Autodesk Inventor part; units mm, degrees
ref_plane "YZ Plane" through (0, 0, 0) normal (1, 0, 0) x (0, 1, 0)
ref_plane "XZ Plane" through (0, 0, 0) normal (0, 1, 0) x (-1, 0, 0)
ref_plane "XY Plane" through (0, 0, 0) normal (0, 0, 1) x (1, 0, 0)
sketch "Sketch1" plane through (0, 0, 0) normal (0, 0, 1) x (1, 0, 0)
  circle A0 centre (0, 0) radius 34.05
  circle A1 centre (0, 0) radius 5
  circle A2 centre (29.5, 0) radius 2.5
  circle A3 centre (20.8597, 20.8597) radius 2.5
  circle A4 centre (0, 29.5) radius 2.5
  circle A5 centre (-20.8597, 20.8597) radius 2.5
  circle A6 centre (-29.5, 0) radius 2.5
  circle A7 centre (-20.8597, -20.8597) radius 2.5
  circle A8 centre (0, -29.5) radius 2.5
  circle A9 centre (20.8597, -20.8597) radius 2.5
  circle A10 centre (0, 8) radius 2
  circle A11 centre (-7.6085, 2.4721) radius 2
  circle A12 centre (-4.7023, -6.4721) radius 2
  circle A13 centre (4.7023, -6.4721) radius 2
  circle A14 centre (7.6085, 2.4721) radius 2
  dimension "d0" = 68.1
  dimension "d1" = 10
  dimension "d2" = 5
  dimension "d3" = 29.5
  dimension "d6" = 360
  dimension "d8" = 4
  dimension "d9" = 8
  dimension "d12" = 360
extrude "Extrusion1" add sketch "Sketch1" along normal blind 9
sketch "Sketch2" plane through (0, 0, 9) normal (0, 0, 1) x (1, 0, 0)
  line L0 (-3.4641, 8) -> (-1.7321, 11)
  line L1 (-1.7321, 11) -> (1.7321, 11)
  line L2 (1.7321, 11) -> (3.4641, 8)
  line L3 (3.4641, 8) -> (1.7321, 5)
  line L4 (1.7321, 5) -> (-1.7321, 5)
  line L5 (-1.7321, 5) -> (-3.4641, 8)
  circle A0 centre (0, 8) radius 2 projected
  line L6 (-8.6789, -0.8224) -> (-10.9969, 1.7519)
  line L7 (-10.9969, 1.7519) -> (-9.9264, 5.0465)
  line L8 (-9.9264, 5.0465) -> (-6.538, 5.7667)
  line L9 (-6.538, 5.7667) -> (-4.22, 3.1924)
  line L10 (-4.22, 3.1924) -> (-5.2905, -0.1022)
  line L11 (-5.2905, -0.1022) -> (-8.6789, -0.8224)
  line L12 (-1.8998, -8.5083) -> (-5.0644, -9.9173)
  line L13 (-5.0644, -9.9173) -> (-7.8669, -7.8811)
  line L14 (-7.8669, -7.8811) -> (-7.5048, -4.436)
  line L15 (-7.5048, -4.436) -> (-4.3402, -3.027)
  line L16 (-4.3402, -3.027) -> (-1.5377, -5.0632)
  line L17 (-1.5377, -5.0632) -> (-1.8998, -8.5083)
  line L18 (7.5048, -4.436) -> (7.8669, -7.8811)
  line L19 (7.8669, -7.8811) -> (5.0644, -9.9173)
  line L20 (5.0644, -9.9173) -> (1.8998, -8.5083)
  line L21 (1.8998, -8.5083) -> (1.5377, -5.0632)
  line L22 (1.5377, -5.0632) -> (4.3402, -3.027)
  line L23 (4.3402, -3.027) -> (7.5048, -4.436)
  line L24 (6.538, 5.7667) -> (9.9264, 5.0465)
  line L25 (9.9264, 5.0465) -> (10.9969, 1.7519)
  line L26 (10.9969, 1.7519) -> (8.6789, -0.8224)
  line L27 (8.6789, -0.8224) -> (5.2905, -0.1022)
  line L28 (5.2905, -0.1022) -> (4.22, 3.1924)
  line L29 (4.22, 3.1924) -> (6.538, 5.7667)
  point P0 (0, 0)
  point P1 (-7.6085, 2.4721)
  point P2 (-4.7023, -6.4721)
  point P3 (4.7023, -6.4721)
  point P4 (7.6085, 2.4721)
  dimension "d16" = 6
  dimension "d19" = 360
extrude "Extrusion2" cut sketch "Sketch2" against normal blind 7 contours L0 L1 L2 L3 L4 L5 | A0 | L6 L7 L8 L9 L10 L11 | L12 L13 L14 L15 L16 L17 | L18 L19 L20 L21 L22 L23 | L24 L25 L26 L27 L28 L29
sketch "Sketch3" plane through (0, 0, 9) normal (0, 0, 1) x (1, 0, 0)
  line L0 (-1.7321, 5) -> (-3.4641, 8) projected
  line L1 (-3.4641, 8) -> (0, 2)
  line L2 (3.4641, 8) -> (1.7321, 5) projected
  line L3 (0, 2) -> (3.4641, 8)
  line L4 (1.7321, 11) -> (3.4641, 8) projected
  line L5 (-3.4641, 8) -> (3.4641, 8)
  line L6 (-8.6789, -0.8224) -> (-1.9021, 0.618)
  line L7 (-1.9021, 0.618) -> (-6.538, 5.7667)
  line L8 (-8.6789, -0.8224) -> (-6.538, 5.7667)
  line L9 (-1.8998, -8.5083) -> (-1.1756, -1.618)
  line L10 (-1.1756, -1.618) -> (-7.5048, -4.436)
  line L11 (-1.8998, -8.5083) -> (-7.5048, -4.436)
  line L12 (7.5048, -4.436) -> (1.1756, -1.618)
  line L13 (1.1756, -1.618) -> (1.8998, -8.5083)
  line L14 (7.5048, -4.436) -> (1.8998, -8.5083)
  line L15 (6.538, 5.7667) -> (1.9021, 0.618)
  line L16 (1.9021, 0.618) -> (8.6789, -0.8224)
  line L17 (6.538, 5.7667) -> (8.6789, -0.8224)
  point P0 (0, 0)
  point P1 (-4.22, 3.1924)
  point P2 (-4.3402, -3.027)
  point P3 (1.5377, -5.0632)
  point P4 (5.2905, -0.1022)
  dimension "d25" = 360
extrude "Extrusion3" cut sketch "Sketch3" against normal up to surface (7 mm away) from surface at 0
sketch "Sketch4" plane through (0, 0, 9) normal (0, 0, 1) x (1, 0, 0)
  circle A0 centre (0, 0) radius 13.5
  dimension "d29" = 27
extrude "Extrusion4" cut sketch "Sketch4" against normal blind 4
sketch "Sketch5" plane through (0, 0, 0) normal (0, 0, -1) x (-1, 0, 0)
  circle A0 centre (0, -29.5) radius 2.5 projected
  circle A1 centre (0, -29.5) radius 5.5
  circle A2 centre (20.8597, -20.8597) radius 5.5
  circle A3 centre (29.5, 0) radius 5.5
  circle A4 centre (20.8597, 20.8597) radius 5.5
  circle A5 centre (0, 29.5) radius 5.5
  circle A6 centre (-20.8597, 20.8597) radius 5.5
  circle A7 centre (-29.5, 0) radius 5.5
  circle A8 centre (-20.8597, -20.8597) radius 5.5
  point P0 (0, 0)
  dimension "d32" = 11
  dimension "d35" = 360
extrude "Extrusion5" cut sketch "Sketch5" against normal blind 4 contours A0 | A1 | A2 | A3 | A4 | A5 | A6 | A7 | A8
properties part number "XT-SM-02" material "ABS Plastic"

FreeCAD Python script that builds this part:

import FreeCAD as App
import Part
import Sketcher

V = App.Vector
Q = App.Units.Quantity

doc = App.newDocument("Part")
body = doc.addObject("PartDesign::Body", "Body")

# Sketch on XY plane
sketch1 = body.newObject("Sketcher::SketchObject", "Sketch")
sketch1.AttachmentSupport = (doc.getObject("XY_Plane"), [""])
sketch1.MapMode = "FlatFace"
sketch1.addGeometry([
    Part.Circle(V(0, 0, 0), V(0, 0, 1), 34.05),  # 0
    Part.Circle(V(-20.8597, -20.8597, 0), V(0, 0, 1), 2.5),  # 1
    Part.Circle(V(-4.7023, -6.4721, 0), V(0, 0, 1), 2),  # 2
    Part.Circle(V(0, -29.5, 0), V(0, 0, 1), 2.5),  # 3
    Part.Circle(V(20.8597, -20.8597, 0), V(0, 0, 1), 2.5),  # 4
    Part.Circle(V(4.7023, -6.4721, 0), V(0, 0, 1), 2),  # 5
    Part.Circle(V(-29.5, 0, 0), V(0, 0, 1), 2.5),  # 6
    Part.Circle(V(-7.6085, 2.4721, 0), V(0, 0, 1), 2),  # 7
    Part.Circle(V(-20.8597, 20.8597, 0), V(0, 0, 1), 2.5),  # 8
    Part.Circle(V(0, 0, 0), V(0, 0, 1), 5),  # 9
    Part.Circle(V(7.6085, 2.4721, 0), V(0, 0, 1), 2),  # 10
    Part.Circle(V(0, 8, 0), V(0, 0, 1), 2),  # 11
    Part.Circle(V(29.5, 0, 0), V(0, 0, 1), 2.5),  # 12
    Part.Circle(V(0, 29.5, 0), V(0, 0, 1), 2.5),  # 13
    Part.Circle(V(20.8597, 20.8597, 0), V(0, 0, 1), 2.5),  # 14
], False)
sketch1.addConstraint([
    Sketcher.Constraint("Coincident", 0, 3, -1, 1),
    Sketcher.Constraint("Coincident", 9, 3, -1, 1),
    Sketcher.Constraint("Equal", 1, 3),
    Sketcher.Constraint("Equal", 3, 4),
    Sketcher.Constraint("Equal", 2, 5),
    Sketcher.Constraint("Equal", 4, 6),
    Sketcher.Constraint("Equal", 5, 7),
    Sketcher.Constraint("Equal", 6, 8),
    Sketcher.Constraint("Equal", 7, 10),
    Sketcher.Constraint("Equal", 10, 11),
    Sketcher.Constraint("Equal", 8, 12),
    Sketcher.Constraint("Equal", 12, 13),
    Sketcher.Constraint("Equal", 13, 14),
    Sketcher.Constraint("Symmetric", 4, 3, 8, 3, -1, 1),
    Sketcher.Constraint("Symmetric", 6, 3, 12, 3, -1, 1),
    Sketcher.Constraint("Symmetric", 3, 3, 13, 3, -1, 1),
    Sketcher.Constraint("Symmetric", 1, 3, 14, 3, -1, 1),
    Sketcher.Constraint("Symmetric", 1, 3, 4, 3, -2),
    Sketcher.Constraint("Symmetric", 2, 3, 5, 3, -2),
    Sketcher.Constraint("Symmetric", 7, 3, 10, 3, -2),
    Sketcher.Constraint("PointOnObject", 3, 3, -2),
    Sketcher.Constraint("PointOnObject", 6, 3, -1),
    Sketcher.Constraint("PointOnObject", 11, 3, -2),
    Sketcher.Constraint("Diameter", 1, 5.0),
    Sketcher.Constraint("Diameter", 2, 4.0),
    Sketcher.Constraint("Diameter", 9, 10.0),
    Sketcher.Constraint("Diameter", 0, 68.1),
    Sketcher.Constraint("DistanceY", -1, 1, 11, 3, 8.0),
    Sketcher.Constraint("DistanceY", 3, 3, -1, 1, 29.5),
    Sketcher.Constraint("DistanceX", 6, 3, -1, 1, 29.5),
    Sketcher.Constraint("DistanceY", 2, 3, -1, 1, 6.472),
    Sketcher.Constraint("DistanceY", -1, 1, 7, 3, 2.472),
    Sketcher.Constraint("DistanceX", 2, 3, 4, 3, 25.562),
    Sketcher.Constraint("DistanceX", 7, 3, 10, 3, 15.217),
    Sketcher.Constraint("DistanceX", 1, 3, -1, 1, 20.8597),
    Sketcher.Constraint("DistanceY", 1, 3, -1, 1, 20.8597),
])
pad1 = body.newObject("PartDesign::Pad", "Pad")
pad1.Profile = sketch1
pad1.Length = 9

# Sketch on XY plane
sketch2 = body.newObject("Sketcher::SketchObject", "Sketch001")
sketch2.AttachmentSupport = (doc.getObject("XY_Plane"), [""])
sketch2.MapMode = "FlatFace"
sketch2.AttachmentOffset = App.Placement(V(0, 0, 9), App.Rotation())
sketch2.addGeometry([
    Part.LineSegment(V(-1.7321, 11, 0), V(-3.4641, 8, 0)),  # 0
    Part.LineSegment(V(-3.4641, 8, 0), V(-1.7321, 5, 0)),  # 1
    Part.LineSegment(V(-1.7321, 5, 0), V(1.7321, 5, 0)),  # 2
    Part.LineSegment(V(1.7321, 5, 0), V(3.4641, 8, 0)),  # 3
    Part.LineSegment(V(3.4641, 8, 0), V(1.7321, 11, 0)),  # 4
    Part.LineSegment(V(1.7321, 11, 0), V(-1.7321, 11, 0)),  # 5
    Part.LineSegment(V(-10.9969, 1.7519, 0), V(-8.6789, -0.8224, 0)),  # 6
    Part.LineSegment(V(-8.6789, -0.8224, 0), V(-5.2905, -0.1022, 0)),  # 7
    Part.LineSegment(V(-5.2905, -0.1022, 0), V(-4.22, 3.1924, 0)),  # 8
    Part.LineSegment(V(-4.22, 3.1924, 0), V(-6.538, 5.7667, 0)),  # 9
    Part.LineSegment(V(-6.538, 5.7667, 0), V(-9.9264, 5.0465, 0)),  # 10
    Part.LineSegment(V(-9.9264, 5.0465, 0), V(-10.9969, 1.7519, 0)),  # 11
    Part.LineSegment(V(-5.0644, -9.9173, 0), V(-1.8998, -8.5083, 0)),  # 12
    Part.LineSegment(V(-1.8998, -8.5083, 0), V(-1.5377, -5.0632, 0)),  # 13
    Part.LineSegment(V(-1.5377, -5.0632, 0), V(-4.3402, -3.027, 0)),  # 14
    Part.LineSegment(V(-4.3402, -3.027, 0), V(-7.5048, -4.436, 0)),  # 15
    Part.LineSegment(V(-7.5048, -4.436, 0), V(-7.8669, -7.8811, 0)),  # 16
    Part.LineSegment(V(-7.8669, -7.8811, 0), V(-5.0644, -9.9173, 0)),  # 17
    Part.LineSegment(V(7.8669, -7.8811, 0), V(7.5048, -4.436, 0)),  # 18
    Part.LineSegment(V(7.5048, -4.436, 0), V(4.3402, -3.027, 0)),  # 19
    Part.LineSegment(V(4.3402, -3.027, 0), V(1.5377, -5.0632, 0)),  # 20
    Part.LineSegment(V(1.5377, -5.0632, 0), V(1.8998, -8.5083, 0)),  # 21
    Part.LineSegment(V(1.8998, -8.5083, 0), V(5.0644, -9.9173, 0)),  # 22
    Part.LineSegment(V(5.0644, -9.9173, 0), V(7.8669, -7.8811, 0)),  # 23
    Part.LineSegment(V(9.9264, 5.0465, 0), V(6.538, 5.7667, 0)),  # 24
    Part.LineSegment(V(6.538, 5.7667, 0), V(4.22, 3.1924, 0)),  # 25
    Part.LineSegment(V(4.22, 3.1924, 0), V(5.2905, -0.1022, 0)),  # 26
    Part.LineSegment(V(5.2905, -0.1022, 0), V(8.6789, -0.8224, 0)),  # 27
    Part.LineSegment(V(8.6789, -0.8224, 0), V(10.9969, 1.7519, 0)),  # 28
    Part.LineSegment(V(10.9969, 1.7519, 0), V(9.9264, 5.0465, 0)),  # 29
], False)
sketch2.addConstraint([
    Sketcher.Constraint("Coincident", 0, 2, 1, 1),
    Sketcher.Constraint("Coincident", 1, 2, 2, 1),
    Sketcher.Constraint("Coincident", 2, 2, 3, 1),
    Sketcher.Constraint("Coincident", 3, 2, 4, 1),
    Sketcher.Constraint("Coincident", 4, 2, 5, 1),
    Sketcher.Constraint("Coincident", 5, 2, 0, 1),
    Sketcher.Constraint("Coincident", 6, 2, 7, 1),
    Sketcher.Constraint("Coincident", 7, 2, 8, 1),
    Sketcher.Constraint("Coincident", 8, 2, 9, 1),
    Sketcher.Constraint("Coincident", 9, 2, 10, 1),
    Sketcher.Constraint("Coincident", 10, 2, 11, 1),
    Sketcher.Constraint("Coincident", 11, 2, 6, 1),
    Sketcher.Constraint("Coincident", 12, 2, 13, 1),
    Sketcher.Constraint("Coincident", 13, 2, 14, 1),
    Sketcher.Constraint("Coincident", 14, 2, 15, 1),
    Sketcher.Constraint("Coincident", 15, 2, 16, 1),
    Sketcher.Constraint("Coincident", 16, 2, 17, 1),
    Sketcher.Constraint("Coincident", 17, 2, 12, 1),
    Sketcher.Constraint("Coincident", 18, 2, 19, 1),
    Sketcher.Constraint("Coincident", 19, 2, 20, 1),
    Sketcher.Constraint("Coincident", 20, 2, 21, 1),
    Sketcher.Constraint("Coincident", 21, 2, 22, 1),
    Sketcher.Constraint("Coincident", 22, 2, 23, 1),
    Sketcher.Constraint("Coincident", 23, 2, 18, 1),
    Sketcher.Constraint("Coincident", 24, 2, 25, 1),
    Sketcher.Constraint("Coincident", 25, 2, 26, 1),
    Sketcher.Constraint("Coincident", 26, 2, 27, 1),
    Sketcher.Constraint("Coincident", 27, 2, 28, 1),
    Sketcher.Constraint("Coincident", 28, 2, 29, 1),
    Sketcher.Constraint("Coincident", 29, 2, 24, 1),
    Sketcher.Constraint("Horizontal", 2),
    Sketcher.Constraint("Horizontal", 5),
    Sketcher.Constraint("Symmetric", 0, 2, 3, 2, -2),
    Sketcher.Constraint("Symmetric", 15, 2, 18, 2, -2),
    Sketcher.Constraint("Symmetric", 14, 2, 19, 2, -2),
    Sketcher.Constraint("Symmetric", 13, 2, 20, 2, -2),
    Sketcher.Constraint("Symmetric", 12, 2, 21, 2, -2),
    Sketcher.Constraint("Symmetric", 17, 2, 22, 2, -2),
    Sketcher.Constraint("Symmetric", 16, 2, 23, 2, -2),
    Sketcher.Constraint("Symmetric", 9, 2, 24, 2, -2),
    Sketcher.Constraint("Symmetric", 8, 2, 25, 2, -2),
    Sketcher.Constraint("Symmetric", 7, 2, 26, 2, -2),
    Sketcher.Constraint("Symmetric", 6, 2, 27, 2, -2),
    Sketcher.Constraint("Symmetric", 11, 2, 28, 2, -2),
    Sketcher.Constraint("Symmetric", 10, 2, 29, 2, -2),
    Sketcher.Constraint("Parallel", 0, 3),
    Sketcher.Constraint("Parallel", 1, 4),
    Sketcher.Constraint("Parallel", 6, 9),
    Sketcher.Constraint("Parallel", 7, 10),
    Sketcher.Constraint("Parallel", 8, 11),
    Sketcher.Constraint("Parallel", 12, 15),
    Sketcher.Constraint("Parallel", 13, 16),
    Sketcher.Constraint("Parallel", 14, 17),
    Sketcher.Constraint("Vertical", 2, 2, 4, 2),
    Sketcher.Constraint("Vertical", 1, 2, 5, 2),
    Sketcher.Constraint("Equal", 4, 6),
    Sketcher.Constraint("Equal", 6, 7),
    Sketcher.Constraint("Equal", 7, 8),
    Sketcher.Constraint("Equal", 8, 9),
    Sketcher.Constraint("Equal", 11, 12),
    Sketcher.Constraint("Equal", 12, 13),
    Sketcher.Constraint("Equal", 13, 14),
    Sketcher.Constraint("Equal", 14, 15),
    Sketcher.Constraint("DistanceY", 2, 2, 4, 2, 6.0),
    Sketcher.Constraint("Angle", 0, Q("-119.9993 deg")),
    Sketcher.Constraint("Angle", 6, Q("-47.999 deg")),
    Sketcher.Constraint("Angle", 7, Q("11.9996 deg")),
    Sketcher.Constraint("Angle", 8, Q("71.9997 deg")),
    Sketcher.Constraint("Angle", 12, Q("24.0004 deg")),
    Sketcher.Constraint("Angle", 13, Q("84 deg")),
    Sketcher.Constraint("Angle", 14, Q("143.9991 deg")),
    Sketcher.Constraint("DistanceY", -1, 1, 0, 2, 8.0),
    Sketcher.Constraint("DistanceX", 8, 2, -1, 1, 4.22),
    Sketcher.Constraint("DistanceX", 12, 2, 19, 2, 6.24),
    Sketcher.Constraint("DistanceX", 1, 2, 24, 2, 8.27),
    Sketcher.Constraint("DistanceY", -1, 1, 11, 2, 1.752),
    Sketcher.Constraint("DistanceY", 14, 2, -1, 1, 3.027),
])
pocket1 = body.newObject("PartDesign::Pocket", "Pocket")
pocket1.Profile = sketch2
pocket1.Length = 7

# Sketch on XY plane
sketch3 = body.newObject("Sketcher::SketchObject", "Sketch002")
sketch3.AttachmentSupport = (doc.getObject("XY_Plane"), [""])
sketch3.MapMode = "FlatFace"
sketch3.AttachmentOffset = App.Placement(V(0, 0, 9), App.Rotation())
sketch3.addGeometry([
    Part.LineSegment(V(-3.4641, 8, 0), V(-1.7321, 5, 0)),  # 0
    Part.LineSegment(V(-1.732063, 5.000022, 0), V(0, 2, 0)),  # 1
    Part.LineSegment(V(0, 2, 0), V(1.732063, 5.000022, 0)),  # 2
    Part.LineSegment(V(1.7321, 5, 0), V(3.4641, 8, 0)),  # 3
    Part.LineSegment(V(3.4641, 8, 0), V(-3.4641, 8, 0)),  # 4
    Part.LineSegment(V(-6.538, 5.7667, 0), V(-8.6789, -0.8224, 0)),  # 5
    Part.LineSegment(V(-8.6789, -0.8224, 0), V(-1.9021, 0.618, 0)),  # 6
    Part.LineSegment(V(-1.9021, 0.618, 0), V(-6.538, 5.7667, 0)),  # 7
    Part.LineSegment(V(-7.5048, -4.436, 0), V(-1.8998, -8.5083, 0)),  # 8
    Part.LineSegment(V(-1.8998, -8.5083, 0), V(-1.1756, -1.618, 0)),  # 9
    Part.LineSegment(V(-1.1756, -1.618, 0), V(-7.5048, -4.436, 0)),  # 10
    Part.LineSegment(V(1.8998, -8.5083, 0), V(7.5048, -4.436, 0)),  # 11
    Part.LineSegment(V(7.5048, -4.436, 0), V(1.1756, -1.618, 0)),  # 12
    Part.LineSegment(V(1.1756, -1.618, 0), V(1.8998, -8.5083, 0)),  # 13
    Part.LineSegment(V(8.6789, -0.8224, 0), V(6.538, 5.7667, 0)),  # 14
    Part.LineSegment(V(6.538, 5.7667, 0), V(1.9021, 0.618, 0)),  # 15
    Part.LineSegment(V(1.9021, 0.618, 0), V(8.6789, -0.8224, 0)),  # 16
], False)
sketch3.addConstraint([
    Sketcher.Constraint("Coincident", 0, 2, 1, 1),
    Sketcher.Constraint("Coincident", 1, 2, 2, 1),
    Sketcher.Constraint("Coincident", 2, 2, 3, 1),
    Sketcher.Constraint("Coincident", 3, 2, 4, 1),
    Sketcher.Constraint("Coincident", 4, 2, 0, 1),
    Sketcher.Constraint("Coincident", 5, 2, 6, 1),
    Sketcher.Constraint("Coincident", 6, 2, 7, 1),
    Sketcher.Constraint("Coincident", 7, 2, 5, 1),
    Sketcher.Constraint("Coincident", 8, 2, 9, 1),
    Sketcher.Constraint("Coincident", 9, 2, 10, 1),
    Sketcher.Constraint("Coincident", 10, 2, 8, 1),
    Sketcher.Constraint("Coincident", 11, 2, 12, 1),
    Sketcher.Constraint("Coincident", 12, 2, 13, 1),
    Sketcher.Constraint("Coincident", 13, 2, 11, 1),
    Sketcher.Constraint("Coincident", 14, 2, 15, 1),
    Sketcher.Constraint("Coincident", 15, 2, 16, 1),
    Sketcher.Constraint("Coincident", 16, 2, 14, 1),
    Sketcher.Constraint("Horizontal", 4),
    Sketcher.Constraint("Symmetric", 0, 2, 2, 2, -2),
    Sketcher.Constraint("Symmetric", 10, 2, 11, 2, -2),
    Sketcher.Constraint("Symmetric", 9, 2, 12, 2, -2),
    Sketcher.Constraint("Symmetric", 8, 2, 13, 2, -2),
    Sketcher.Constraint("Symmetric", 7, 2, 14, 2, -2),
    Sketcher.Constraint("Symmetric", 6, 2, 15, 2, -2),
    Sketcher.Constraint("Symmetric", 5, 2, 16, 2, -2),
    Sketcher.Constraint("PointOnObject", 1, 2, -2),
    Sketcher.Constraint("Parallel", 0, 1),
    Sketcher.Constraint("Parallel", 2, 3),
    Sketcher.Constraint("Equal", 0, 1),
    Sketcher.Constraint("Equal", 5, 6),
    Sketcher.Constraint("Equal", 6, 7),
    Sketcher.Constraint("Equal", 7, 8),
    Sketcher.Constraint("Equal", 8, 9),
    Sketcher.Constraint("Equal", 9, 10),
    Sketcher.Constraint("Angle", 0, Q("-60.0007 deg")),
    Sketcher.Constraint("Angle", 5, Q("-107.9998 deg")),
    Sketcher.Constraint("Angle", 8, Q("-36.0002 deg")),
    Sketcher.Constraint("DistanceY", -1, 1, 0, 2, 5.0),
    Sketcher.Constraint("DistanceY", -1, 1, 1, 2, 2.0),
    Sketcher.Constraint("DistanceX", 6, 2, 0, 2, 0.17),
    Sketcher.Constraint("DistanceX", 0, 2, 14, 2, 8.27),
    Sketcher.Constraint("DistanceY", -1, 1, 6, 2, 0.618),
    Sketcher.Constraint("DistanceY", 9, 2, -1, 1, 1.618),
    Sketcher.Constraint("DistanceX", 5, 2, 8, 2, 6.779),
])
pocket2 = body.newObject("PartDesign::Pocket", "Pocket001")
pocket2.Profile = sketch3
pocket2.Length = 7

# Sketch on XY plane
sketch4 = body.newObject("Sketcher::SketchObject", "Sketch003")
sketch4.AttachmentSupport = (doc.getObject("XY_Plane"), [""])
sketch4.MapMode = "FlatFace"
sketch4.AttachmentOffset = App.Placement(V(0, 0, 9), App.Rotation())
sketch4.addGeometry(Part.Circle(V(0, 0, 0), V(0, 0, 1), 13.5), False)
sketch4.addConstraint([
    Sketcher.Constraint("Coincident", 0, 3, -1, 1),
    Sketcher.Constraint("Diameter", 0, 27.0),
])
pocket3 = body.newObject("PartDesign::Pocket", "Pocket002")
pocket3.Profile = sketch4
pocket3.Length = 4

# Sketch on XY plane
sketch5 = body.newObject("Sketcher::SketchObject", "Sketch004")
sketch5.AttachmentSupport = (doc.getObject("XY_Plane"), [""])
sketch5.MapMode = "FlatFace"
sketch5.addGeometry([
    Part.Circle(V(0, -29.5, 0), V(0, 0, 1), 5.5),  # 0
    Part.Circle(V(-20.8597, -20.8597, 0), V(0, 0, 1), 5.5),  # 1
    Part.Circle(V(-29.5, 0, 0), V(0, 0, 1), 5.5),  # 2
    Part.Circle(V(-20.8597, 20.8597, 0), V(0, 0, 1), 5.5),  # 3
    Part.Circle(V(0, 29.5, 0), V(0, 0, 1), 5.5),  # 4
    Part.Circle(V(20.8597, 20.8597, 0), V(0, 0, 1), 5.5),  # 5
    Part.Circle(V(29.5, 0, 0), V(0, 0, 1), 5.5),  # 6
    Part.Circle(V(20.8597, -20.8597, 0), V(0, 0, 1), 5.5),  # 7
], False)
sketch5.addConstraint([
    Sketcher.Constraint("Equal", 0, 1),
    Sketcher.Constraint("Equal", 1, 2),
    Sketcher.Constraint("Equal", 2, 3),
    Sketcher.Constraint("Equal", 3, 4),
    Sketcher.Constraint("Equal", 4, 5),
    Sketcher.Constraint("Equal", 5, 6),
    Sketcher.Constraint("Equal", 6, 7),
    Sketcher.Constraint("Symmetric", 0, 3, 4, 3, -1, 1),
    Sketcher.Constraint("Symmetric", 1, 3, 5, 3, -1, 1),
    Sketcher.Constraint("Symmetric", 2, 3, 6, 3, -1, 1),
    Sketcher.Constraint("Symmetric", 3, 3, 7, 3, -1, 1),
    Sketcher.Constraint("Symmetric", 3, 3, 5, 3, -2),
    Sketcher.Constraint("PointOnObject", 0, 3, -2),
    Sketcher.Constraint("PointOnObject", 2, 3, -1),
    Sketcher.Constraint("Diameter", 0, 11.0),
    Sketcher.Constraint("DistanceY", 0, 3, 4, 3, 59.0),
    Sketcher.Constraint("DistanceX", 2, 3, -1, 1, 29.5),
    Sketcher.Constraint("DistanceX", 1, 3, -1, 1, 20.8597),
    Sketcher.Constraint("DistanceY", 1, 3, -1, 1, 20.8597),
])
pocket4 = body.newObject("PartDesign::Pocket", "Pocket003")
pocket4.Profile = sketch5
pocket4.Length = 4
pocket4.Reversed = True

doc.recompute()
